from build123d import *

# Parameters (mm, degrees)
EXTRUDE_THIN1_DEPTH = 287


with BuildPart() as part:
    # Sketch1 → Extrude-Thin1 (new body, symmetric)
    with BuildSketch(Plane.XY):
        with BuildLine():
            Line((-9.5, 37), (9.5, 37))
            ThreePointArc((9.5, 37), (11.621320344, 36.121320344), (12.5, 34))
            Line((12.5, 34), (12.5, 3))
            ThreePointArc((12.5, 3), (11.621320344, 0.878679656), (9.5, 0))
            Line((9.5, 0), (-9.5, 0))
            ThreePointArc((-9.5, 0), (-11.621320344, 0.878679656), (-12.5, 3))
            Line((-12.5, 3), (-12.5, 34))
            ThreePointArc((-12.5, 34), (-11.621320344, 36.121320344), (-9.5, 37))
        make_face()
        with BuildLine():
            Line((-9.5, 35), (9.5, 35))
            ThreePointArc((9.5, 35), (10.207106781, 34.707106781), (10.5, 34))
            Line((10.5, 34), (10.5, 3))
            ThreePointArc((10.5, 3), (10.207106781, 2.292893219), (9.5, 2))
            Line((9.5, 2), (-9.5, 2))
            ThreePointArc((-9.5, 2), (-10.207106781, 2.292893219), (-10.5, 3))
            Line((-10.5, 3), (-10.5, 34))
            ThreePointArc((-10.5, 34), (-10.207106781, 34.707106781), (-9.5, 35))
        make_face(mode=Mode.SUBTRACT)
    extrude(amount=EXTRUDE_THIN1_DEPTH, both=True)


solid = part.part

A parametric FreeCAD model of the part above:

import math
import FreeCAD as App
import Part
import Sketcher
Q = App.Units.Quantity

doc = App.newDocument("Part")
body = doc.addObject("PartDesign::Body", "Body")

sketch1 = body.newObject("Sketcher::SketchObject", "Sketch")
sketch1.AttachmentSupport = (doc.getObject("XY_Plane"), [""])
sketch1.MapMode = "FlatFace"
sketch1.addGeometry(Part.LineSegment(App.Vector(9.5, 37, 0), App.Vector(-9.5, 37, 0)), False)
sketch1.addGeometry(Part.ArcOfCircle(Part.Circle(App.Vector(-9.5, 34, 0), App.Vector(0, 0, 1), 3), math.radians(90), math.radians(180)), False)
sketch1.addGeometry(Part.LineSegment(App.Vector(-12.5, 34, 0), App.Vector(-12.5, 3, 0)), False)
sketch1.addGeometry(Part.ArcOfCircle(Part.Circle(App.Vector(-9.5, 3, 0), App.Vector(0, 0, 1), 3), math.radians(180), math.radians(270)), False)
sketch1.addGeometry(Part.LineSegment(App.Vector(-9.5, 0, 0), App.Vector(9.5, 0, 0)), False)
sketch1.addGeometry(Part.ArcOfCircle(Part.Circle(App.Vector(9.5, 3, 0), App.Vector(0, 0, 1), 3), math.radians(-90), math.radians(0)), False)
sketch1.addGeometry(Part.LineSegment(App.Vector(12.5, 3, 0), App.Vector(12.5, 34, 0)), False)
sketch1.addGeometry(Part.ArcOfCircle(Part.Circle(App.Vector(9.5, 34, 0), App.Vector(0, 0, 1), 3), math.radians(0), math.radians(90)), False)
sketch1.addGeometry(Part.LineSegment(App.Vector(-9.5, 35, 0), App.Vector(9.5, 35, 0)), False)
sketch1.addGeometry(Part.ArcOfCircle(Part.Circle(App.Vector(9.5, 34, 0), App.Vector(0, 0, 1), 1), math.radians(0), math.radians(90)), False)
sketch1.addGeometry(Part.LineSegment(App.Vector(10.5, 34, 0), App.Vector(10.5, 3, 0)), False)
sketch1.addGeometry(Part.ArcOfCircle(Part.Circle(App.Vector(9.5, 3, 0), App.Vector(0, 0, 1), 1), math.radians(-90), math.radians(0)), False)
sketch1.addGeometry(Part.LineSegment(App.Vector(9.5, 2, 0), App.Vector(-9.5, 2, 0)), False)
sketch1.addGeometry(Part.ArcOfCircle(Part.Circle(App.Vector(-9.5, 3, 0), App.Vector(0, 0, 1), 1), math.radians(-180), math.radians(-90)), False)
sketch1.addGeometry(Part.LineSegment(App.Vector(-10.5, 3, 0), App.Vector(-10.5, 34, 0)), False)
sketch1.addGeometry(Part.ArcOfCircle(Part.Circle(App.Vector(-9.5, 34, 0), App.Vector(0, 0, 1), 1), math.radians(90), math.radians(180)), False)
sketch1.addConstraint(Sketcher.Constraint("Tangent", 0, 2, 1, 1))
sketch1.addConstraint(Sketcher.Constraint("Tangent", 1, 2, 2, 1))
sketch1.addConstraint(Sketcher.Constraint("Tangent", 2, 2, 3, 1))
sketch1.addConstraint(Sketcher.Constraint("Tangent", 3, 2, 4, 1))
sketch1.addConstraint(Sketcher.Constraint("Tangent", 4, 2, 5, 1))
sketch1.addConstraint(Sketcher.Constraint("Tangent", 5, 2, 6, 1))
sketch1.addConstraint(Sketcher.Constraint("Tangent", 6, 2, 7, 1))
sketch1.addConstraint(Sketcher.Constraint("Tangent", 7, 2, 0, 1))
sketch1.addConstraint(Sketcher.Constraint("Tangent", 8, 2, 9, 2))
sketch1.addConstraint(Sketcher.Constraint("Tangent", 9, 1, 10, 1))
sketch1.addConstraint(Sketcher.Constraint("Tangent", 10, 2, 11, 2))
sketch1.addConstraint(Sketcher.Constraint("Tangent", 11, 1, 12, 1))
sketch1.addConstraint(Sketcher.Constraint("Tangent", 12, 2, 13, 2))
sketch1.addConstraint(Sketcher.Constraint("Tangent", 13, 1, 14, 1))
sketch1.addConstraint(Sketcher.Constraint("Tangent", 14, 2, 15, 2))
sketch1.addConstraint(Sketcher.Constraint("Tangent", 15, 1, 8, 1))
sketch1.addConstraint(Sketcher.Constraint("Horizontal", 0))
sketch1.addConstraint(Sketcher.Constraint("Vertical", 2))
sketch1.addConstraint(Sketcher.Constraint("Horizontal", 4))
sketch1.addConstraint(Sketcher.Constraint("Vertical", 6))
sketch1.addConstraint(Sketcher.Constraint("Horizontal", 8))
sketch1.addConstraint(Sketcher.Constraint("Vertical", 10))
sketch1.addConstraint(Sketcher.Constraint("Horizontal", 12))
sketch1.addConstraint(Sketcher.Constraint("Vertical", 14))
sketch1.addConstraint(Sketcher.Constraint("Coincident", 9, 3, 7, 3))
sketch1.addConstraint(Sketcher.Constraint("Coincident", 11, 3, 5, 3))
sketch1.addConstraint(Sketcher.Constraint("Coincident", 13, 3, 3, 3))
sketch1.addConstraint(Sketcher.Constraint("Equal", 1, 3))
sketch1.addConstraint(Sketcher.Constraint("Equal", 3, 5))
sketch1.addConstraint(Sketcher.Constraint("Equal", 5, 7))
sketch1.addConstraint(Sketcher.Constraint("Equal", 13, 15))
sketch1.addConstraint(Sketcher.Constraint("Symmetric", 3, 2, 4, 2, -1, 1))
sketch1.addConstraint(Sketcher.Constraint("Radius", 1, Q("3 mm")))
sketch1.addConstraint(Sketcher.Constraint("Radius", 9, Q("1 mm")))
sketch1.addConstraint(Sketcher.Constraint("DistanceX", 0, 2, 0, 1, Q("19 mm")))
sketch1.addConstraint(Sketcher.Constraint("DistanceY", 2, 2, 2, 1, Q("31 mm")))
pad1 = body.newObject("PartDesign::Pad", "Pad")
pad1.Profile = sketch1
pad1.Length = 574
pad1.Midplane = True

doc.recompute()
